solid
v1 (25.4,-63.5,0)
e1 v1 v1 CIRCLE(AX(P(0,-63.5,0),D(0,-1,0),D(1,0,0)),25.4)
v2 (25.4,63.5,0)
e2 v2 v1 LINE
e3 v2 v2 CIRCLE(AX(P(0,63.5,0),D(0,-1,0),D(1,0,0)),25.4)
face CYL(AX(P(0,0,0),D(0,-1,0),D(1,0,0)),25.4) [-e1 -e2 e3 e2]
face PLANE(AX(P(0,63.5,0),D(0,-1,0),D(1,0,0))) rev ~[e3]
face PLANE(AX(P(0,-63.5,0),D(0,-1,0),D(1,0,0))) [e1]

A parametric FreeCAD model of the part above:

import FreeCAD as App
import Part
import Sketcher
Q = App.Units.Quantity

doc = App.newDocument("Part")
params = doc.addObject("Spreadsheet::Sheet", "Params")
for row, (alias, value) in enumerate([
    ("sketch1_diameter", "2 in"),
    ("pad1_length", "5 in"),
], start=1):
    params.set(f"A{row}", alias)
    params.set(f"B{row}", "=" + value)
    params.setAlias(f"B{row}", alias)

body = doc.addObject("PartDesign::Body", "Body")

# Sketch on XZ plane
sketch1 = body.newObject("Sketcher::SketchObject", "Sketch")
sketch1.AttachmentSupport = (doc.getObject("XZ_Plane"), [""])
sketch1.MapMode = "FlatFace"
sketch1.addGeometry(Part.Circle(App.Vector(0, 0, 0), App.Vector(0, 0, 1), 25.4), False)
sketch1.addConstraint([
    Sketcher.Constraint("Coincident", 0, 3, -1, 1),
    Sketcher.Constraint("Diameter", 0, Q("2 in")),
])
sketch1.setExpression("Constraints[1]", "Params.sketch1_diameter")
pad1 = body.newObject("PartDesign::Pad", "Pad")
pad1.Profile = sketch1
pad1.setExpression("Length", "Params.pad1_length")
pad1.Midplane = True

doc.recompute()
